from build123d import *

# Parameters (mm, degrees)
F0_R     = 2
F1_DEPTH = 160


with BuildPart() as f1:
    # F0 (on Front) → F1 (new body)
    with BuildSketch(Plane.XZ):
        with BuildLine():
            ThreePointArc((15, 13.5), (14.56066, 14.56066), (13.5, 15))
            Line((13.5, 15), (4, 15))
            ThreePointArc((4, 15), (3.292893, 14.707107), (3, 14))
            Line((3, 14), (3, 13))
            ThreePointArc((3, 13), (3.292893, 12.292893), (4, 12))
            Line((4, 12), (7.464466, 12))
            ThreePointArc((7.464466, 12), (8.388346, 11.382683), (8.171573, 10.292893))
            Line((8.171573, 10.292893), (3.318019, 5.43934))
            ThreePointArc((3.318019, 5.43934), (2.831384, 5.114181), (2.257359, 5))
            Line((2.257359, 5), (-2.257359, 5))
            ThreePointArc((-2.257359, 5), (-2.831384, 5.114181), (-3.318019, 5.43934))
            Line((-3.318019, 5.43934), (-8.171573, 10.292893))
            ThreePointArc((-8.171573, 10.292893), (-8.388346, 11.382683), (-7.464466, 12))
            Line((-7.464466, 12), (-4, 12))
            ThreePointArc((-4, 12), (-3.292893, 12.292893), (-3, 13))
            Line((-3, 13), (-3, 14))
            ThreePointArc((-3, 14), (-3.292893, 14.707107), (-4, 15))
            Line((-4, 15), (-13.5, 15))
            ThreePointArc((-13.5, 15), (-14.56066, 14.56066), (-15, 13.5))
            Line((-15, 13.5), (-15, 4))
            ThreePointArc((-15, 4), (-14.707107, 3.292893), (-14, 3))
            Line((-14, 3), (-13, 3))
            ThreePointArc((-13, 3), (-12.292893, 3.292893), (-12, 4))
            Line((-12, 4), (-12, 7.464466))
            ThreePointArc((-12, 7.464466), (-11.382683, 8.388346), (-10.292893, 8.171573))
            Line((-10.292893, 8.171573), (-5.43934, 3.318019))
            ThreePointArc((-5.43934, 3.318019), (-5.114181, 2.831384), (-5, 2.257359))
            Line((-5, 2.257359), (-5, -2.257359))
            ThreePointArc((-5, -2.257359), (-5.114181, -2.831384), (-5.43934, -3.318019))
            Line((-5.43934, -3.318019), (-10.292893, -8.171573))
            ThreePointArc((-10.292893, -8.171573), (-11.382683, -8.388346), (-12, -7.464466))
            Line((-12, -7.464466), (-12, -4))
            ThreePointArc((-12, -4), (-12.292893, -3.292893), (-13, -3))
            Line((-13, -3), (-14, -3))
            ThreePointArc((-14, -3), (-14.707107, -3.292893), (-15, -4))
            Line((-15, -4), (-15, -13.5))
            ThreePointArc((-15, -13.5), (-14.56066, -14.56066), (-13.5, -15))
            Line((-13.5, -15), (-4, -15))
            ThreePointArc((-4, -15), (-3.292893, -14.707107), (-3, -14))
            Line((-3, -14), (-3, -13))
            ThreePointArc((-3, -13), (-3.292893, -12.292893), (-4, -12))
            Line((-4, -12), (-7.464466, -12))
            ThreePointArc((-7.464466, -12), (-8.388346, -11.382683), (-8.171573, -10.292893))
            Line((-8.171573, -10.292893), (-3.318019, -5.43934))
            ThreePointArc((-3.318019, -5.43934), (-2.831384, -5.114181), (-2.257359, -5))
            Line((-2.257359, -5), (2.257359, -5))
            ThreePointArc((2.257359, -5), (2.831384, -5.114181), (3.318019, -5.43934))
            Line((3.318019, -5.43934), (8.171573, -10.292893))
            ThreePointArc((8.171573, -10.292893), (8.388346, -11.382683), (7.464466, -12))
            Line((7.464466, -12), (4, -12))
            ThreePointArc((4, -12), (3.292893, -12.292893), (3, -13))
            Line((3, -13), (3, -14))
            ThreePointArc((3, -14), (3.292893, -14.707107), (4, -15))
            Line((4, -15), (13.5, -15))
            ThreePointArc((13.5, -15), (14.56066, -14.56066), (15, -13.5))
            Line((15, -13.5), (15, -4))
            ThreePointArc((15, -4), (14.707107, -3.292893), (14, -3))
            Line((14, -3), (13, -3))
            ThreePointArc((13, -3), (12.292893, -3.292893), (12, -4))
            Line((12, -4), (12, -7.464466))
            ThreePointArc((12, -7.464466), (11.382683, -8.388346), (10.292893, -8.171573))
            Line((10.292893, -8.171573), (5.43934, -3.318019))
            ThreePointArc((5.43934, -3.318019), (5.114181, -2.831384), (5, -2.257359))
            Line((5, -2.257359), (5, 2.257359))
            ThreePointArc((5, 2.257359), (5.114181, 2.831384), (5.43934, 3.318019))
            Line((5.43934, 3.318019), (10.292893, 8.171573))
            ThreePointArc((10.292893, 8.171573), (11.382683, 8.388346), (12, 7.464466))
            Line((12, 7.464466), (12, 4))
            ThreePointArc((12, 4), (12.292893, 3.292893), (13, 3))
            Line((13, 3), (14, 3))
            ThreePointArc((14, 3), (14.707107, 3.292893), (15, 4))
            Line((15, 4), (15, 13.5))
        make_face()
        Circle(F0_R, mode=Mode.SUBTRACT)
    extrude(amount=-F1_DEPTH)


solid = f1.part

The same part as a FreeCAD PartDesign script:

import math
import FreeCAD as App
import Part
import Sketcher

V = App.Vector
Q = App.Units.Quantity

doc = App.newDocument("Part")
body = doc.addObject("PartDesign::Body", "Body")

# Sketch on XZ plane
sketch1 = body.newObject("Sketcher::SketchObject", "Sketch")
sketch1.AttachmentSupport = (doc.getObject("XZ_Plane"), [""])
sketch1.MapMode = "FlatFace"
sketch1.addGeometry(Part.ArcOfCircle(Part.Circle(V(13.5, 13.5, 0), V(0, 0, 1), 1.5), math.radians(0), math.radians(90)), False)
sketch1.addGeometry(Part.LineSegment(V(13.5, 15, 0), V(4, 15, 0)), False)
sketch1.addGeometry(Part.ArcOfCircle(Part.Circle(V(4, 14, 0), V(0, 0, 1), 1), math.radians(90), math.radians(180)), False)
sketch1.addGeometry(Part.LineSegment(V(3, 14, 0), V(3, 13, 0)), False)
sketch1.addGeometry(Part.ArcOfCircle(Part.Circle(V(4, 13, 0), V(0, 0, 1), 1), math.radians(180), math.radians(270)), False)
sketch1.addGeometry(Part.LineSegment(V(4, 12, 0), V(7.5, 12, 0)), False)
sketch1.addGeometry(Part.ArcOfCircle(Part.Circle(V(7.5, 11, 0), V(0, 0, 1), 1), math.radians(-45), math.radians(90)), False)
sketch1.addGeometry(Part.LineSegment(V(8.2, 10.3, 0), V(3.3, 5.4, 0)), False)
sketch1.addGeometry(Part.ArcOfCircle(Part.Circle(V(2.3, 6.5, 0), V(0, 0, 1), 1.5), math.radians(-90), math.radians(-45)), False)
sketch1.addGeometry(Part.LineSegment(V(2.3, 5, 0), V(-2.3, 5, 0)), False)
sketch1.addGeometry(Part.ArcOfCircle(Part.Circle(V(-2.3, 6.5, 0), V(0, 0, 1), 1.5), math.radians(-135), math.radians(-90)), False)
sketch1.addGeometry(Part.LineSegment(V(-3.3, 5.4, 0), V(-8.2, 10.3, 0)), False)
sketch1.addGeometry(Part.ArcOfCircle(Part.Circle(V(-7.5, 11, 0), V(0, 0, 1), 1), math.radians(90), math.radians(225)), False)
sketch1.addGeometry(Part.LineSegment(V(-7.5, 12, 0), V(-4, 12, 0)), False)
sketch1.addGeometry(Part.ArcOfCircle(Part.Circle(V(-4, 13, 0), V(0, 0, 1), 1), math.radians(-90), math.radians(0)), False)
sketch1.addGeometry(Part.LineSegment(V(-3, 13, 0), V(-3, 14, 0)), False)
sketch1.addGeometry(Part.ArcOfCircle(Part.Circle(V(-4, 14, 0), V(0, 0, 1), 1), math.radians(0), math.radians(90)), False)
sketch1.addGeometry(Part.LineSegment(V(-4, 15, 0), V(-13.5, 15, 0)), False)
sketch1.addGeometry(Part.ArcOfCircle(Part.Circle(V(-13.5, 13.5, 0), V(0, 0, 1), 1.5), math.radians(90), math.radians(180)), False)
sketch1.addGeometry(Part.LineSegment(V(-15, 13.5, 0), V(-15, 4, 0)), False)
sketch1.addGeometry(Part.ArcOfCircle(Part.Circle(V(-14, 4, 0), V(0, 0, 1), 1), math.radians(180), math.radians(270)), False)
sketch1.addGeometry(Part.LineSegment(V(-14, 3, 0), V(-13, 3, 0)), False)
sketch1.addGeometry(Part.ArcOfCircle(Part.Circle(V(-13, 4, 0), V(0, 0, 1), 1), math.radians(-90), math.radians(0)), False)
sketch1.addGeometry(Part.LineSegment(V(-12, 4, 0), V(-12, 7.5, 0)), False)
sketch1.addGeometry(Part.ArcOfCircle(Part.Circle(V(-11, 7.5, 0), V(0, 0, 1), 1), math.radians(45), math.radians(180)), False)
sketch1.addGeometry(Part.LineSegment(V(-10.3, 8.2, 0), V(-5.4, 3.3, 0)), False)
sketch1.addGeometry(Part.ArcOfCircle(Part.Circle(V(-6.5, 2.3, 0), V(0, 0, 1), 1.5), math.radians(0), math.radians(45)), False)
sketch1.addGeometry(Part.LineSegment(V(-5, 2.3, 0), V(-5, -2.3, 0)), False)
sketch1.addGeometry(Part.ArcOfCircle(Part.Circle(V(-6.5, -2.3, 0), V(0, 0, 1), 1.5), math.radians(-45), math.radians(0)), False)
sketch1.addGeometry(Part.LineSegment(V(-5.4, -3.3, 0), V(-10.3, -8.2, 0)), False)
sketch1.addGeometry(Part.ArcOfCircle(Part.Circle(V(-11, -7.5, 0), V(0, 0, 1), 1), math.radians(180), math.radians(315)), False)
sketch1.addGeometry(Part.LineSegment(V(-12, -7.5, 0), V(-12, -4, 0)), False)
sketch1.addGeometry(Part.ArcOfCircle(Part.Circle(V(-13, -4, 0), V(0, 0, 1), 1), math.radians(0), math.radians(90)), False)
sketch1.addGeometry(Part.LineSegment(V(-13, -3, 0), V(-14, -3, 0)), False)
sketch1.addGeometry(Part.ArcOfCircle(Part.Circle(V(-14, -4, 0), V(0, 0, 1), 1), math.radians(90), math.radians(180)), False)
sketch1.addGeometry(Part.LineSegment(V(-15, -4, 0), V(-15, -13.5, 0)), False)
sketch1.addGeometry(Part.ArcOfCircle(Part.Circle(V(-13.5, -13.5, 0), V(0, 0, 1), 1.5), math.radians(-180), math.radians(-90)), False)
sketch1.addGeometry(Part.LineSegment(V(-13.5, -15, 0), V(-4, -15, 0)), False)
sketch1.addGeometry(Part.ArcOfCircle(Part.Circle(V(-4, -14, 0), V(0, 0, 1), 1), math.radians(-90), math.radians(0)), False)
sketch1.addGeometry(Part.LineSegment(V(-3, -14, 0), V(-3, -13, 0)), False)
sketch1.addGeometry(Part.ArcOfCircle(Part.Circle(V(-4, -13, 0), V(0, 0, 1), 1), math.radians(0), math.radians(90)), False)
sketch1.addGeometry(Part.LineSegment(V(-4, -12, 0), V(-7.5, -12, 0)), False)
sketch1.addGeometry(Part.ArcOfCircle(Part.Circle(V(-7.5, -11, 0), V(0, 0, 1), 1), math.radians(135), math.radians(270)), False)
sketch1.addGeometry(Part.LineSegment(V(-8.2, -10.3, 0), V(-3.3, -5.4, 0)), False)
sketch1.addGeometry(Part.ArcOfCircle(Part.Circle(V(-2.3, -6.5, 0), V(0, 0, 1), 1.5), math.radians(90), math.radians(135)), False)
sketch1.addGeometry(Part.LineSegment(V(-2.3, -5, 0), V(2.3, -5, 0)), False)
sketch1.addGeometry(Part.ArcOfCircle(Part.Circle(V(2.3, -6.5, 0), V(0, 0, 1), 1.5), math.radians(45), math.radians(90)), False)
sketch1.addGeometry(Part.LineSegment(V(3.3, -5.4, 0), V(8.2, -10.3, 0)), False)
sketch1.addGeometry(Part.ArcOfCircle(Part.Circle(V(7.5, -11, 0), V(0, 0, 1), 1), math.radians(-90), math.radians(45)), False)
sketch1.addGeometry(Part.LineSegment(V(7.5, -12, 0), V(4, -12, 0)), False)
sketch1.addGeometry(Part.ArcOfCircle(Part.Circle(V(4, -13, 0), V(0, 0, 1), 1), math.radians(90), math.radians(180)), False)
sketch1.addGeometry(Part.LineSegment(V(3, -13, 0), V(3, -14, 0)), False)
sketch1.addGeometry(Part.ArcOfCircle(Part.Circle(V(4, -14, 0), V(0, 0, 1), 1), math.radians(180), math.radians(270)), False)
sketch1.addGeometry(Part.LineSegment(V(4, -15, 0), V(13.5, -15, 0)), False)
sketch1.addGeometry(Part.ArcOfCircle(Part.Circle(V(13.5, -13.5, 0), V(0, 0, 1), 1.5), math.radians(-90), math.radians(0)), False)
sketch1.addGeometry(Part.LineSegment(V(15, -13.5, 0), V(15, -4, 0)), False)
sketch1.addGeometry(Part.ArcOfCircle(Part.Circle(V(14, -4, 0), V(0, 0, 1), 1), math.radians(0), math.radians(90)), False)
sketch1.addGeometry(Part.LineSegment(V(14, -3, 0), V(13, -3, 0)), False)
sketch1.addGeometry(Part.ArcOfCircle(Part.Circle(V(13, -4, 0), V(0, 0, 1), 1), math.radians(90), math.radians(180)), False)
sketch1.addGeometry(Part.LineSegment(V(12, -4, 0), V(12, -7.5, 0)), False)
sketch1.addGeometry(Part.ArcOfCircle(Part.Circle(V(11, -7.5, 0), V(0, 0, 1), 1), math.radians(-135), math.radians(0)), False)
sketch1.addGeometry(Part.LineSegment(V(10.3, -8.2, 0), V(5.4, -3.3, 0)), False)
sketch1.addGeometry(Part.ArcOfCircle(Part.Circle(V(6.5, -2.3, 0), V(0, 0, 1), 1.5), math.radians(-180), math.radians(-135)), False)
sketch1.addGeometry(Part.LineSegment(V(5, -2.3, 0), V(5, 2.3, 0)), False)
sketch1.addGeometry(Part.ArcOfCircle(Part.Circle(V(6.5, 2.3, 0), V(0, 0, 1), 1.5), math.radians(135), math.radians(180)), False)
sketch1.addGeometry(Part.LineSegment(V(5.4, 3.3, 0), V(10.3, 8.2, 0)), False)
sketch1.addGeometry(Part.ArcOfCircle(Part.Circle(V(11, 7.5, 0), V(0, 0, 1), 1), math.radians(0), math.radians(135)), False)
sketch1.addGeometry(Part.LineSegment(V(12, 7.5, 0), V(12, 4, 0)), False)
sketch1.addGeometry(Part.ArcOfCircle(Part.Circle(V(13, 4, 0), V(0, 0, 1), 1), math.radians(180), math.radians(270)), False)
sketch1.addGeometry(Part.LineSegment(V(13, 3, 0), V(14, 3, 0)), False)
sketch1.addGeometry(Part.ArcOfCircle(Part.Circle(V(14, 4, 0), V(0, 0, 1), 1), math.radians(-90), math.radians(0)), False)
sketch1.addGeometry(Part.LineSegment(V(15, 4, 0), V(15, 13.5, 0)), False)
sketch1.addGeometry(Part.Circle(V(0, 0, 0), V(0, 0, 1), 2), False)
sketch1.addConstraint(Sketcher.Constraint("Tangent", 0, 2, 1, 1))
sketch1.addConstraint(Sketcher.Constraint("Tangent", 1, 2, 2, 1))
sketch1.addConstraint(Sketcher.Constraint("Tangent", 2, 2, 3, 1))
sketch1.addConstraint(Sketcher.Constraint("Tangent", 3, 2, 4, 1))
sketch1.addConstraint(Sketcher.Constraint("Tangent", 4, 2, 5, 1))
sketch1.addConstraint(Sketcher.Constraint("Tangent", 5, 2, 6, 2))
sketch1.addConstraint(Sketcher.Constraint("Tangent", 6, 1, 7, 1))
sketch1.addConstraint(Sketcher.Constraint("Tangent", 7, 2, 8, 2))
sketch1.addConstraint(Sketcher.Constraint("Tangent", 8, 1, 9, 1))
sketch1.addConstraint(Sketcher.Constraint("Tangent", 9, 2, 10, 2))
sketch1.addConstraint(Sketcher.Constraint("Tangent", 10, 1, 11, 1))
sketch1.addConstraint(Sketcher.Constraint("Tangent", 11, 2, 12, 2))
sketch1.addConstraint(Sketcher.Constraint("Tangent", 12, 1, 13, 1))
sketch1.addConstraint(Sketcher.Constraint("Tangent", 13, 2, 14, 1))
sketch1.addConstraint(Sketcher.Constraint("Tangent", 14, 2, 15, 1))
sketch1.addConstraint(Sketcher.Constraint("Tangent", 15, 2, 16, 1))
sketch1.addConstraint(Sketcher.Constraint("Tangent", 16, 2, 17, 1))
sketch1.addConstraint(Sketcher.Constraint("Tangent", 17, 2, 18, 1))
sketch1.addConstraint(Sketcher.Constraint("Tangent", 18, 2, 19, 1))
sketch1.addConstraint(Sketcher.Constraint("Tangent", 19, 2, 20, 1))
sketch1.addConstraint(Sketcher.Constraint("Tangent", 20, 2, 21, 1))
sketch1.addConstraint(Sketcher.Constraint("Tangent", 21, 2, 22, 1))
sketch1.addConstraint(Sketcher.Constraint("Tangent", 22, 2, 23, 1))
sketch1.addConstraint(Sketcher.Constraint("Tangent", 23, 2, 24, 2))
sketch1.addConstraint(Sketcher.Constraint("Tangent", 24, 1, 25, 1))
sketch1.addConstraint(Sketcher.Constraint("Tangent", 25, 2, 26, 2))
sketch1.addConstraint(Sketcher.Constraint("Tangent", 26, 1, 27, 1))
sketch1.addConstraint(Sketcher.Constraint("Tangent", 27, 2, 28, 2))
sketch1.addConstraint(Sketcher.Constraint("Tangent", 28, 1, 29, 1))
sketch1.addConstraint(Sketcher.Constraint("Tangent", 29, 2, 30, 2))
sketch1.addConstraint(Sketcher.Constraint("Tangent", 30, 1, 31, 1))
sketch1.addConstraint(Sketcher.Constraint("Tangent", 31, 2, 32, 1))
sketch1.addConstraint(Sketcher.Constraint("Tangent", 32, 2, 33, 1))
sketch1.addConstraint(Sketcher.Constraint("Tangent", 33, 2, 34, 1))
sketch1.addConstraint(Sketcher.Constraint("Tangent", 34, 2, 35, 1))
sketch1.addConstraint(Sketcher.Constraint("Tangent", 35, 2, 36, 1))
sketch1.addConstraint(Sketcher.Constraint("Tangent", 36, 2, 37, 1))
sketch1.addConstraint(Sketcher.Constraint("Tangent", 37, 2, 38, 1))
sketch1.addConstraint(Sketcher.Constraint("Tangent", 38, 2, 39, 1))
sketch1.addConstraint(Sketcher.Constraint("Tangent", 39, 2, 40, 1))
sketch1.addConstraint(Sketcher.Constraint("Tangent", 40, 2, 41, 1))
sketch1.addConstraint(Sketcher.Constraint("Tangent", 41, 2, 42, 2))
sketch1.addConstraint(Sketcher.Constraint("Tangent", 42, 1, 43, 1))
sketch1.addConstraint(Sketcher.Constraint("Tangent", 43, 2, 44, 2))
sketch1.addConstraint(Sketcher.Constraint("Tangent", 44, 1, 45, 1))
sketch1.addConstraint(Sketcher.Constraint("Tangent", 45, 2, 46, 2))
sketch1.addConstraint(Sketcher.Constraint("Tangent", 46, 1, 47, 1))
sketch1.addConstraint(Sketcher.Constraint("Tangent", 47, 2, 48, 2))
sketch1.addConstraint(Sketcher.Constraint("Tangent", 48, 1, 49, 1))
sketch1.addConstraint(Sketcher.Constraint("Tangent", 49, 2, 50, 1))
sketch1.addConstraint(Sketcher.Constraint("Tangent", 50, 2, 51, 1))
sketch1.addConstraint(Sketcher.Constraint("Tangent", 51, 2, 52, 1))
sketch1.addConstraint(Sketcher.Constraint("Tangent", 52, 2, 53, 1))
sketch1.addConstraint(Sketcher.Constraint("Tangent", 53, 2, 54, 1))
sketch1.addConstraint(Sketcher.Constraint("Tangent", 54, 2, 55, 1))
sketch1.addConstraint(Sketcher.Constraint("Tangent", 55, 2, 56, 1))
sketch1.addConstraint(Sketcher.Constraint("Tangent", 56, 2, 57, 1))
sketch1.addConstraint(Sketcher.Constraint("Tangent", 57, 2, 58, 1))
sketch1.addConstraint(Sketcher.Constraint("Tangent", 58, 2, 59, 1))
sketch1.addConstraint(Sketcher.Constraint("Tangent", 59, 2, 60, 2))
sketch1.addConstraint(Sketcher.Constraint("Tangent", 60, 1, 61, 1))
sketch1.addConstraint(Sketcher.Constraint("Tangent", 61, 2, 62, 2))
sketch1.addConstraint(Sketcher.Constraint("Tangent", 62, 1, 63, 1))
sketch1.addConstraint(Sketcher.Constraint("Tangent", 63, 2, 64, 2))
sketch1.addConstraint(Sketcher.Constraint("Tangent", 64, 1, 65, 1))
sketch1.addConstraint(Sketcher.Constraint("Tangent", 65, 2, 66, 2))
sketch1.addConstraint(Sketcher.Constraint("Tangent", 66, 1, 67, 1))
sketch1.addConstraint(Sketcher.Constraint("Tangent", 67, 2, 68, 1))
sketch1.addConstraint(Sketcher.Constraint("Tangent", 68, 2, 69, 1))
sketch1.addConstraint(Sketcher.Constraint("Tangent", 69, 2, 70, 1))
sketch1.addConstraint(Sketcher.Constraint("Tangent", 70, 2, 71, 1))
sketch1.addConstraint(Sketcher.Constraint("Tangent", 71, 2, 0, 1))
sketch1.addConstraint(Sketcher.Constraint("Horizontal", 1))
sketch1.addConstraint(Sketcher.Constraint("Vertical", 3))
sketch1.addConstraint(Sketcher.Constraint("Horizontal", 5))
sketch1.addConstraint(Sketcher.Constraint("Horizontal", 9))
sketch1.addConstraint(Sketcher.Constraint("Horizontal", 13))
sketch1.addConstraint(Sketcher.Constraint("Vertical", 15))
sketch1.addConstraint(Sketcher.Constraint("Horizontal", 17))
sketch1.addConstraint(Sketcher.Constraint("Vertical", 19))
sketch1.addConstraint(Sketcher.Constraint("Horizontal", 21))
sketch1.addConstraint(Sketcher.Constraint("Vertical", 23))
sketch1.addConstraint(Sketcher.Constraint("Vertical", 27))
sketch1.addConstraint(Sketcher.Constraint("Vertical", 31))
sketch1.addConstraint(Sketcher.Constraint("Horizontal", 33))
sketch1.addConstraint(Sketcher.Constraint("Vertical", 35))
sketch1.addConstraint(Sketcher.Constraint("Horizontal", 37))
sketch1.addConstraint(Sketcher.Constraint("Vertical", 39))
sketch1.addConstraint(Sketcher.Constraint("Horizontal", 41))
sketch1.addConstraint(Sketcher.Constraint("Horizontal", 45))
sketch1.addConstraint(Sketcher.Constraint("Horizontal", 49))
sketch1.addConstraint(Sketcher.Constraint("Vertical", 51))
sketch1.addConstraint(Sketcher.Constraint("Horizontal", 53))
sketch1.addConstraint(Sketcher.Constraint("Vertical", 55))
sketch1.addConstraint(Sketcher.Constraint("Horizontal", 57))
sketch1.addConstraint(Sketcher.Constraint("Vertical", 59))
sketch1.addConstraint(Sketcher.Constraint("Vertical", 63))
sketch1.addConstraint(Sketcher.Constraint("Vertical", 67))
sketch1.addConstraint(Sketcher.Constraint("Horizontal", 69))
sketch1.addConstraint(Sketcher.Constraint("Vertical", 71))
sketch1.addConstraint(Sketcher.Constraint("Coincident", 72, 3, -1, 1))
sketch1.addConstraint(Sketcher.Constraint("Equal", 2, 4))
sketch1.addConstraint(Sketcher.Constraint("Equal", 4, 6))
sketch1.addConstraint(Sketcher.Constraint("Equal", 0, 8))
sketch1.addConstraint(Sketcher.Constraint("Equal", 8, 10))
sketch1.addConstraint(Sketcher.Constraint("Equal", 6, 12))
sketch1.addConstraint(Sketcher.Constraint("Equal", 12, 14))
sketch1.addConstraint(Sketcher.Constraint("Equal", 14, 16))
sketch1.addConstraint(Sketcher.Constraint("Equal", 10, 18))
sketch1.addConstraint(Sketcher.Constraint("Equal", 16, 20))
sketch1.addConstraint(Sketcher.Constraint("Equal", 20, 22))
sketch1.addConstraint(Sketcher.Constraint("Equal", 22, 24))
sketch1.addConstraint(Sketcher.Constraint("Equal", 18, 26))
sketch1.addConstraint(Sketcher.Constraint("Equal", 26, 28))
sketch1.addConstraint(Sketcher.Constraint("Equal", 24, 30))
sketch1.addConstraint(Sketcher.Constraint("Equal", 30, 32))
sketch1.addConstraint(Sketcher.Constraint("Equal", 32, 34))
sketch1.addConstraint(Sketcher.Constraint("Equal", 28, 36))
sketch1.addConstraint(Sketcher.Constraint("Equal", 34, 38))
sketch1.addConstraint(Sketcher.Constraint("Equal", 38, 40))
sketch1.addConstraint(Sketcher.Constraint("Equal", 40, 42))
sketch1.addConstraint(Sketcher.Constraint("Equal", 36, 44))
sketch1.addConstraint(Sketcher.Constraint("Equal", 44, 46))
sketch1.addConstraint(Sketcher.Constraint("Equal", 42, 48))
sketch1.addConstraint(Sketcher.Constraint("Equal", 48, 50))
sketch1.addConstraint(Sketcher.Constraint("Equal", 50, 52))
sketch1.addConstraint(Sketcher.Constraint("Equal", 46, 54))
sketch1.addConstraint(Sketcher.Constraint("Equal", 52, 56))
sketch1.addConstraint(Sketcher.Constraint("Equal", 56, 58))
sketch1.addConstraint(Sketcher.Constraint("Equal", 58, 60))
sketch1.addConstraint(Sketcher.Constraint("Equal", 54, 62))
sketch1.addConstraint(Sketcher.Constraint("Equal", 62, 64))
sketch1.addConstraint(Sketcher.Constraint("Equal", 60, 66))
sketch1.addConstraint(Sketcher.Constraint("Equal", 66, 68))
sketch1.addConstraint(Sketcher.Constraint("Equal", 68, 70))
sketch1.addConstraint(Sketcher.Constraint("Symmetric", 0, 3, 36, 3, -1, 1))
sketch1.addConstraint(Sketcher.Constraint("Symmetric", 4, 3, 40, 3, -1, 1))
sketch1.addConstraint(Sketcher.Constraint("Symmetric", 8, 3, 44, 3, -1, 1))
sketch1.addConstraint(Sketcher.Constraint("Symmetric", 12, 3, 48, 3, -1, 1))
sketch1.addConstraint(Sketcher.Constraint("Symmetric", 16, 3, 52, 3, -1, 1))
sketch1.addConstraint(Sketcher.Constraint("Symmetric", 20, 3, 56, 3, -1, 1))
sketch1.addConstraint(Sketcher.Constraint("Symmetric", 24, 3, 60, 3, -1, 1))
sketch1.addConstraint(Sketcher.Constraint("Symmetric", 26, 3, 62, 3, -1, 1))
sketch1.addConstraint(Sketcher.Constraint("Symmetric", 30, 3, 66, 3, -1, 1))
sketch1.addConstraint(Sketcher.Constraint("Symmetric", 6, 3, 12, 3, -2))
sketch1.addConstraint(Sketcher.Constraint("Symmetric", 2, 3, 16, 3, -2))
sketch1.addConstraint(Sketcher.Constraint("Symmetric", 34, 3, 56, 3, -2))
sketch1.addConstraint(Sketcher.Constraint("Symmetric", 30, 3, 60, 3, -2))
sketch1.addConstraint(Sketcher.Constraint("Symmetric", 43, 2, 46, 1, -2))
sketch1.addConstraint(Sketcher.Constraint("Perpendicular", 7, 11))
sketch1.addConstraint(Sketcher.Constraint("Parallel", 11, 25))
sketch1.addConstraint(Sketcher.Constraint("Perpendicular", 25, 29))
sketch1.addConstraint(Sketcher.Constraint("Perpendicular", 43, 47))
sketch1.addConstraint(Sketcher.Constraint("Perpendicular", 61, 65))
sketch1.addConstraint(Sketcher.Constraint("Horizontal", 22, 3, 68, 3))
sketch1.addConstraint(Sketcher.Constraint("Equal", 69, 3))
sketch1.addConstraint(Sketcher.Constraint("Equal", 53, 19))
sketch1.addConstraint(Sketcher.Constraint("Equal", 49, 23))
sketch1.addConstraint(Sketcher.Constraint("Equal", 45, 27))
sketch1.addConstraint(Sketcher.Constraint("Equal", 11, 25))
sketch1.addConstraint(Sketcher.Constraint("Diameter", 72, Q("4 mm")))
sketch1.addConstraint(Sketcher.Constraint("Radius", 2, Q("0.999999 mm")))
sketch1.addConstraint(Sketcher.Constraint("Radius", 0, Q("1.500001 mm")))
sketch1.addConstraint(Sketcher.Constraint("DistanceX", 21, 1, 21, 2, Q("1 mm")))
sketch1.addConstraint(Sketcher.Constraint("DistanceX", 1, 2, 1, 1, Q("9.5 mm")))
sketch1.addConstraint(Sketcher.Constraint("DistanceX", -1, 1, 2, 3, Q("3.999999 mm")))
sketch1.addConstraint(Sketcher.Constraint("DistanceY", -1, 1, 8, 1, Q("5 mm")))
sketch1.addConstraint(Sketcher.Constraint("DistanceX", 9, 2, 9, 1, Q("4.514718 mm")))
pad1 = body.newObject("PartDesign::Pad", "Pad")
pad1.Profile = sketch1
pad1.Length = 160
pad1.Reversed = True

doc.recompute()
